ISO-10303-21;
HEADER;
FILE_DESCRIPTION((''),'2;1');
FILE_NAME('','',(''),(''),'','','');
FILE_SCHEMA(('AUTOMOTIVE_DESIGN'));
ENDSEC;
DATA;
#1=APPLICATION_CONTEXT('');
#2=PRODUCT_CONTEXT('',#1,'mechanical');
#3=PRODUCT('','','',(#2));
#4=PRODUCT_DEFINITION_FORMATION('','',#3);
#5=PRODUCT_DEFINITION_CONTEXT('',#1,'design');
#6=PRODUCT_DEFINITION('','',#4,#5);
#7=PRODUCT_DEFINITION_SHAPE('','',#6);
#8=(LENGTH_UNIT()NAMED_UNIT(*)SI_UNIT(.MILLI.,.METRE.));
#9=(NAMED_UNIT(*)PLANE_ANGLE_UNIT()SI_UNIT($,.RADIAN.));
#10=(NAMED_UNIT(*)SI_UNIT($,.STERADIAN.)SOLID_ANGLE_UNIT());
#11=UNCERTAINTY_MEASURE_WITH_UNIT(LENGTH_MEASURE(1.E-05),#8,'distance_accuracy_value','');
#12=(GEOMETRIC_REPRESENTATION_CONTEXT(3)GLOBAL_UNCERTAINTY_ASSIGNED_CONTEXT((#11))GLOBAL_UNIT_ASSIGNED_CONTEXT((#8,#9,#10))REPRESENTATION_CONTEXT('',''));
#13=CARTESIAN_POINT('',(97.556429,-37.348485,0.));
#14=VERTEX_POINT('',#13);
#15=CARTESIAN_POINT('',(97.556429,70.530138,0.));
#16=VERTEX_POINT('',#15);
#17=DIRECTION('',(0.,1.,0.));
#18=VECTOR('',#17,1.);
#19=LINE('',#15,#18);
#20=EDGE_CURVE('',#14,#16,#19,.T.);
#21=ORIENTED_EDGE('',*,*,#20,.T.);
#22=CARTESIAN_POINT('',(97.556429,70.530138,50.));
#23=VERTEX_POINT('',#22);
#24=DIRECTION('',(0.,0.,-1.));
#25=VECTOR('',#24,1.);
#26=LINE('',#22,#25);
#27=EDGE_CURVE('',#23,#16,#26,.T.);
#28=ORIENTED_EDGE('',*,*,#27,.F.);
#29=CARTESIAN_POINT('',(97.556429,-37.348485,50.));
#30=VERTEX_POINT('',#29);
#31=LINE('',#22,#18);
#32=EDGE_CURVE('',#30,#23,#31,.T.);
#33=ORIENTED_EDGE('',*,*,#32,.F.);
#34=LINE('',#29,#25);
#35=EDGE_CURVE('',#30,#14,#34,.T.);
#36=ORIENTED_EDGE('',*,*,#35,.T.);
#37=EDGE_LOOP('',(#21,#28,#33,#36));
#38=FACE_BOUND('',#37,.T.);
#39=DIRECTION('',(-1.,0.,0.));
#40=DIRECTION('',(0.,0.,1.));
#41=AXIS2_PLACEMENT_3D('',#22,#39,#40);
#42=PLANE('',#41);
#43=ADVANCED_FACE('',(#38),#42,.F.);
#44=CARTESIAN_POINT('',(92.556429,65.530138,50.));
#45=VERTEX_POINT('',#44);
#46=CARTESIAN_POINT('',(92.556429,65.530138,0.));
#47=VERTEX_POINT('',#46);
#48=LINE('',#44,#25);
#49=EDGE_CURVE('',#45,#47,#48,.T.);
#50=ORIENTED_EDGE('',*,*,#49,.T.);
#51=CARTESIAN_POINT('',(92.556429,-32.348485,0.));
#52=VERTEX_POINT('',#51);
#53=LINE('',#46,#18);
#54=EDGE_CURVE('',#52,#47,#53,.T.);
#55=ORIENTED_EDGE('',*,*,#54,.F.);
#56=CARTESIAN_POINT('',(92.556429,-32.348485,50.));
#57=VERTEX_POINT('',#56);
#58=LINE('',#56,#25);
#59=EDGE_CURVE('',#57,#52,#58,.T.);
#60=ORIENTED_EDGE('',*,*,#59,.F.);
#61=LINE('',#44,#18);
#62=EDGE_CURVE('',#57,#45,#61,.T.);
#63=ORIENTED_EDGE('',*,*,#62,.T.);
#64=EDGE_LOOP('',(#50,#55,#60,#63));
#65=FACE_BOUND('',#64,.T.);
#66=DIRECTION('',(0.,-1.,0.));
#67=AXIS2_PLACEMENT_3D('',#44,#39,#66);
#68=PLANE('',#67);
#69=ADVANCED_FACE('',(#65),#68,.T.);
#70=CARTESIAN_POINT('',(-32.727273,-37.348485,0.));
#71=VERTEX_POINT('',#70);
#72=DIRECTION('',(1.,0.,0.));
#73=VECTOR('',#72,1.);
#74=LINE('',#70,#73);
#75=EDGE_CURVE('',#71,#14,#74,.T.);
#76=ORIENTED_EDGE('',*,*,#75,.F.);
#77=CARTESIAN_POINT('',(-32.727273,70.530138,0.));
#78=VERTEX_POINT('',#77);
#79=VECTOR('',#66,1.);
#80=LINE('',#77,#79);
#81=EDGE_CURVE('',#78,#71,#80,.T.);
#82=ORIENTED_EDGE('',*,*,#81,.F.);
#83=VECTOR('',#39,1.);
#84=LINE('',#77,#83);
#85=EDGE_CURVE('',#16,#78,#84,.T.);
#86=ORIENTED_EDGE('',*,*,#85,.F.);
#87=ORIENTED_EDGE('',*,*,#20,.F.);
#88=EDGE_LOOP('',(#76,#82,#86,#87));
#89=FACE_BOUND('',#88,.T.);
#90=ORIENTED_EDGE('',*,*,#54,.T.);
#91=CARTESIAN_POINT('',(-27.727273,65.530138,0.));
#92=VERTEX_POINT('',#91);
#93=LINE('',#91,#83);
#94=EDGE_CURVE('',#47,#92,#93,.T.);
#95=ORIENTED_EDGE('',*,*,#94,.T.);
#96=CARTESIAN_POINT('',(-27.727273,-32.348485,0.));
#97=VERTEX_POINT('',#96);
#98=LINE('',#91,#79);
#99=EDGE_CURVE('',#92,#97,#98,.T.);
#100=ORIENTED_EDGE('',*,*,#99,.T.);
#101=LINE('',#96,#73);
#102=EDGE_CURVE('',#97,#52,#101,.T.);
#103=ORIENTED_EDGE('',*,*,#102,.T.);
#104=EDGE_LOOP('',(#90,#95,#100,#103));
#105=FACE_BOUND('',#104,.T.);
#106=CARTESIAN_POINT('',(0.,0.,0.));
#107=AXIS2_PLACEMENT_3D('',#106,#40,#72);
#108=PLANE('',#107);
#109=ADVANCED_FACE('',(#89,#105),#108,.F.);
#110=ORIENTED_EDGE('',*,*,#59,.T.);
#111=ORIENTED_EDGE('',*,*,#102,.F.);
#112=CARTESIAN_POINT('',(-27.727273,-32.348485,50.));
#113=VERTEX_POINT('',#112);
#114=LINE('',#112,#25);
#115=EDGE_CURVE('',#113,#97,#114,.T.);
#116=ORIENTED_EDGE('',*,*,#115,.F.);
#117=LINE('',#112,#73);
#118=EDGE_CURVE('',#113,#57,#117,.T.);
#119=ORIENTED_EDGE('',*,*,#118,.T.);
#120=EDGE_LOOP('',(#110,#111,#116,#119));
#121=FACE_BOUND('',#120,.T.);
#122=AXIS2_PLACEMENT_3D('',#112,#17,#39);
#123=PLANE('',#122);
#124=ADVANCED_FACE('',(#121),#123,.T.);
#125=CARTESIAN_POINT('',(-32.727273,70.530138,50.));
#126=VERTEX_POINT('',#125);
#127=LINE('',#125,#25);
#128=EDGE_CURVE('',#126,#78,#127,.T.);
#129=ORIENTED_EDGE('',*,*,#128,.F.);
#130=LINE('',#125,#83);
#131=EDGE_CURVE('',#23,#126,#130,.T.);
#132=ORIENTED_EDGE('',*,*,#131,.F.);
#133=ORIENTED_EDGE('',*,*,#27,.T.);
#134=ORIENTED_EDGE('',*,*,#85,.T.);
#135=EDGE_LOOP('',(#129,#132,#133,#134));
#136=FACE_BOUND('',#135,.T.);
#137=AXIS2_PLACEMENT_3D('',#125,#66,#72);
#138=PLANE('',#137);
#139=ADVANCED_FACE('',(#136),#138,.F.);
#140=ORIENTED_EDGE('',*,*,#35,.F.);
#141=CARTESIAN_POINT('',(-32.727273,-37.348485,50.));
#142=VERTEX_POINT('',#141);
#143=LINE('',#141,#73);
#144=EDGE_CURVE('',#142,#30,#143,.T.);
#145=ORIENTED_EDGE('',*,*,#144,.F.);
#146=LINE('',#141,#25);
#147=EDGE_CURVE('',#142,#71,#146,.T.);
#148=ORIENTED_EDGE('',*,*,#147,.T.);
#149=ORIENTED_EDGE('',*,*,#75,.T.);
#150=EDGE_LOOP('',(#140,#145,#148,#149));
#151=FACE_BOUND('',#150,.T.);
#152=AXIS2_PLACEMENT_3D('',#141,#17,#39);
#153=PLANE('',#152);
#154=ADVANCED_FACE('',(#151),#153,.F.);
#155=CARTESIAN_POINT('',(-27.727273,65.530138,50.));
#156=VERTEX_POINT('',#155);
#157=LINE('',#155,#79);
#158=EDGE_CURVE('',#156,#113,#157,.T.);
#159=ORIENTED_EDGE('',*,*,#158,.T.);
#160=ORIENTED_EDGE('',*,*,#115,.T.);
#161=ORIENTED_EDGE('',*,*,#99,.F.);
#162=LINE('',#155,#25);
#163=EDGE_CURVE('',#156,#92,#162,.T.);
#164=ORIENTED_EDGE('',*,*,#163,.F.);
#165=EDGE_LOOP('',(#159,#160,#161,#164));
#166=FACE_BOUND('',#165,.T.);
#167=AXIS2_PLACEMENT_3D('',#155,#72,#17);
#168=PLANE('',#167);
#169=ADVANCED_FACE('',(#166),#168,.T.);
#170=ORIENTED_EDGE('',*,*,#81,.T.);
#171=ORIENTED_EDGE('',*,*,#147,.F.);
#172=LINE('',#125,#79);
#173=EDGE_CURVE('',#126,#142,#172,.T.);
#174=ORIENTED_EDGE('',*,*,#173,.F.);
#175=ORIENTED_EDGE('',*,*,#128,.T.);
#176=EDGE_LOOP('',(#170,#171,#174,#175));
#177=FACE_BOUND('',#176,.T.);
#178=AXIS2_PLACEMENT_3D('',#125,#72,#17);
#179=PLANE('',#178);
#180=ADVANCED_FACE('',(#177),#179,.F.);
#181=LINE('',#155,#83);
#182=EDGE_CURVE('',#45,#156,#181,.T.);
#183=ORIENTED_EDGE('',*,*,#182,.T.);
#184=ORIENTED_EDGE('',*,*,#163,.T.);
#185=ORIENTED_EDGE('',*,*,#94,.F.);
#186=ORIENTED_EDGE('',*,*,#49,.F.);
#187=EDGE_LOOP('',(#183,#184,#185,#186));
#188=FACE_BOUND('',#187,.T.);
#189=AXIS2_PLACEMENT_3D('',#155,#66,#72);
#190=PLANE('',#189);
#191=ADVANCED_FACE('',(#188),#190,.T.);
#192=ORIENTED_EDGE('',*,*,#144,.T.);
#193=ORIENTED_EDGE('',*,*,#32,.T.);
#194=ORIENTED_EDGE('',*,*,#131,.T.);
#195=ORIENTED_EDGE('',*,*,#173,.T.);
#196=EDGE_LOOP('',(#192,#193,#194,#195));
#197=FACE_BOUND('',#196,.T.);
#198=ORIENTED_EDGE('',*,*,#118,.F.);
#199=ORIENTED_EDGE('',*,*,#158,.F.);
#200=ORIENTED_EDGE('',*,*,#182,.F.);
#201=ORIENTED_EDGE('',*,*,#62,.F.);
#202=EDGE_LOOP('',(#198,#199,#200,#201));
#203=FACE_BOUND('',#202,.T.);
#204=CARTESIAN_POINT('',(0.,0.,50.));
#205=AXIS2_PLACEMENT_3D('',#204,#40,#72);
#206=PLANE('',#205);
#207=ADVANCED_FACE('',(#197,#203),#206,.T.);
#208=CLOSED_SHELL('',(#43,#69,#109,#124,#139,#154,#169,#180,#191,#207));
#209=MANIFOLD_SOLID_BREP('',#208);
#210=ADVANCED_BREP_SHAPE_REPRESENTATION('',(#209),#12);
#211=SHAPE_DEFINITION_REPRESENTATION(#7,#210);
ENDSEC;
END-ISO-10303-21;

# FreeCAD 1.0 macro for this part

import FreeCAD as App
import Part
import Sketcher
from FreeCAD import Vector
Q = App.Units.Quantity


def add_polygon(sketch, points):
    """Adds a closed chain of lines whose ends are joined by coincident constraints."""
    first, n = sketch.GeometryCount, len(points)
    for a, b in zip(points, points[1:] + points[:1]):
        sketch.addGeometry(Part.LineSegment(App.Vector(*a, 0), App.Vector(*b, 0)), False)
    for i in range(n):
        sketch.addConstraint(Sketcher.Constraint("Coincident", first + i, 2, first + (i + 1) % n, 1))

doc = App.newDocument("Part")
body = doc.addObject("PartDesign::Body", "Body")

sketch1 = body.newObject("Sketcher::SketchObject", "Sketch")
sketch1.AttachmentSupport = (doc.getObject("XY_Plane"), [""])
sketch1.MapMode = "FlatFace"
add_polygon(sketch1, [(-33, 71), (-33, -37), (98, -37), (98, 71)])
add_polygon(sketch1, [(93, -32), (-28, -32), (-28, 66), (93, 66)])
sketch1.addConstraint([
    Sketcher.Constraint("Vertical", 0),
    Sketcher.Constraint("Horizontal", 1),
    Sketcher.Constraint("Vertical", 2),
    Sketcher.Constraint("Horizontal", 3),
    Sketcher.Constraint("Horizontal", 4),
    Sketcher.Constraint("Vertical", 5),
    Sketcher.Constraint("Horizontal", 6),
    Sketcher.Constraint("Vertical", 7),
    Sketcher.Constraint("DistanceX", 0, 2, 4, 2, Q("5 mm")),
    Sketcher.Constraint("DistanceY", 0, 2, 4, 2, Q("5 mm")),
    Sketcher.Constraint("DistanceY", 5, 2, 3, 2, Q("5 mm")),
    Sketcher.Constraint("DistanceX", 6, 2, 2, 2, Q("5 mm")),
    Sketcher.Constraint("DistanceX", 1, 1, 1, 2, Q("130.283702 mm")),
    Sketcher.Constraint("DistanceY", 0, 2, 0, 1, Q("107.878623 mm")),
    Sketcher.Constraint("DistanceX", -1, 1, 1, 2, Q("97.556429 mm")),
    Sketcher.Constraint("DistanceY", 0, 2, -1, 1, Q("37.348485 mm")),
])
pad1 = body.newObject("PartDesign::Pad", "Pad")
pad1.Profile = sketch1
pad1.Length = 50

doc.recompute()
